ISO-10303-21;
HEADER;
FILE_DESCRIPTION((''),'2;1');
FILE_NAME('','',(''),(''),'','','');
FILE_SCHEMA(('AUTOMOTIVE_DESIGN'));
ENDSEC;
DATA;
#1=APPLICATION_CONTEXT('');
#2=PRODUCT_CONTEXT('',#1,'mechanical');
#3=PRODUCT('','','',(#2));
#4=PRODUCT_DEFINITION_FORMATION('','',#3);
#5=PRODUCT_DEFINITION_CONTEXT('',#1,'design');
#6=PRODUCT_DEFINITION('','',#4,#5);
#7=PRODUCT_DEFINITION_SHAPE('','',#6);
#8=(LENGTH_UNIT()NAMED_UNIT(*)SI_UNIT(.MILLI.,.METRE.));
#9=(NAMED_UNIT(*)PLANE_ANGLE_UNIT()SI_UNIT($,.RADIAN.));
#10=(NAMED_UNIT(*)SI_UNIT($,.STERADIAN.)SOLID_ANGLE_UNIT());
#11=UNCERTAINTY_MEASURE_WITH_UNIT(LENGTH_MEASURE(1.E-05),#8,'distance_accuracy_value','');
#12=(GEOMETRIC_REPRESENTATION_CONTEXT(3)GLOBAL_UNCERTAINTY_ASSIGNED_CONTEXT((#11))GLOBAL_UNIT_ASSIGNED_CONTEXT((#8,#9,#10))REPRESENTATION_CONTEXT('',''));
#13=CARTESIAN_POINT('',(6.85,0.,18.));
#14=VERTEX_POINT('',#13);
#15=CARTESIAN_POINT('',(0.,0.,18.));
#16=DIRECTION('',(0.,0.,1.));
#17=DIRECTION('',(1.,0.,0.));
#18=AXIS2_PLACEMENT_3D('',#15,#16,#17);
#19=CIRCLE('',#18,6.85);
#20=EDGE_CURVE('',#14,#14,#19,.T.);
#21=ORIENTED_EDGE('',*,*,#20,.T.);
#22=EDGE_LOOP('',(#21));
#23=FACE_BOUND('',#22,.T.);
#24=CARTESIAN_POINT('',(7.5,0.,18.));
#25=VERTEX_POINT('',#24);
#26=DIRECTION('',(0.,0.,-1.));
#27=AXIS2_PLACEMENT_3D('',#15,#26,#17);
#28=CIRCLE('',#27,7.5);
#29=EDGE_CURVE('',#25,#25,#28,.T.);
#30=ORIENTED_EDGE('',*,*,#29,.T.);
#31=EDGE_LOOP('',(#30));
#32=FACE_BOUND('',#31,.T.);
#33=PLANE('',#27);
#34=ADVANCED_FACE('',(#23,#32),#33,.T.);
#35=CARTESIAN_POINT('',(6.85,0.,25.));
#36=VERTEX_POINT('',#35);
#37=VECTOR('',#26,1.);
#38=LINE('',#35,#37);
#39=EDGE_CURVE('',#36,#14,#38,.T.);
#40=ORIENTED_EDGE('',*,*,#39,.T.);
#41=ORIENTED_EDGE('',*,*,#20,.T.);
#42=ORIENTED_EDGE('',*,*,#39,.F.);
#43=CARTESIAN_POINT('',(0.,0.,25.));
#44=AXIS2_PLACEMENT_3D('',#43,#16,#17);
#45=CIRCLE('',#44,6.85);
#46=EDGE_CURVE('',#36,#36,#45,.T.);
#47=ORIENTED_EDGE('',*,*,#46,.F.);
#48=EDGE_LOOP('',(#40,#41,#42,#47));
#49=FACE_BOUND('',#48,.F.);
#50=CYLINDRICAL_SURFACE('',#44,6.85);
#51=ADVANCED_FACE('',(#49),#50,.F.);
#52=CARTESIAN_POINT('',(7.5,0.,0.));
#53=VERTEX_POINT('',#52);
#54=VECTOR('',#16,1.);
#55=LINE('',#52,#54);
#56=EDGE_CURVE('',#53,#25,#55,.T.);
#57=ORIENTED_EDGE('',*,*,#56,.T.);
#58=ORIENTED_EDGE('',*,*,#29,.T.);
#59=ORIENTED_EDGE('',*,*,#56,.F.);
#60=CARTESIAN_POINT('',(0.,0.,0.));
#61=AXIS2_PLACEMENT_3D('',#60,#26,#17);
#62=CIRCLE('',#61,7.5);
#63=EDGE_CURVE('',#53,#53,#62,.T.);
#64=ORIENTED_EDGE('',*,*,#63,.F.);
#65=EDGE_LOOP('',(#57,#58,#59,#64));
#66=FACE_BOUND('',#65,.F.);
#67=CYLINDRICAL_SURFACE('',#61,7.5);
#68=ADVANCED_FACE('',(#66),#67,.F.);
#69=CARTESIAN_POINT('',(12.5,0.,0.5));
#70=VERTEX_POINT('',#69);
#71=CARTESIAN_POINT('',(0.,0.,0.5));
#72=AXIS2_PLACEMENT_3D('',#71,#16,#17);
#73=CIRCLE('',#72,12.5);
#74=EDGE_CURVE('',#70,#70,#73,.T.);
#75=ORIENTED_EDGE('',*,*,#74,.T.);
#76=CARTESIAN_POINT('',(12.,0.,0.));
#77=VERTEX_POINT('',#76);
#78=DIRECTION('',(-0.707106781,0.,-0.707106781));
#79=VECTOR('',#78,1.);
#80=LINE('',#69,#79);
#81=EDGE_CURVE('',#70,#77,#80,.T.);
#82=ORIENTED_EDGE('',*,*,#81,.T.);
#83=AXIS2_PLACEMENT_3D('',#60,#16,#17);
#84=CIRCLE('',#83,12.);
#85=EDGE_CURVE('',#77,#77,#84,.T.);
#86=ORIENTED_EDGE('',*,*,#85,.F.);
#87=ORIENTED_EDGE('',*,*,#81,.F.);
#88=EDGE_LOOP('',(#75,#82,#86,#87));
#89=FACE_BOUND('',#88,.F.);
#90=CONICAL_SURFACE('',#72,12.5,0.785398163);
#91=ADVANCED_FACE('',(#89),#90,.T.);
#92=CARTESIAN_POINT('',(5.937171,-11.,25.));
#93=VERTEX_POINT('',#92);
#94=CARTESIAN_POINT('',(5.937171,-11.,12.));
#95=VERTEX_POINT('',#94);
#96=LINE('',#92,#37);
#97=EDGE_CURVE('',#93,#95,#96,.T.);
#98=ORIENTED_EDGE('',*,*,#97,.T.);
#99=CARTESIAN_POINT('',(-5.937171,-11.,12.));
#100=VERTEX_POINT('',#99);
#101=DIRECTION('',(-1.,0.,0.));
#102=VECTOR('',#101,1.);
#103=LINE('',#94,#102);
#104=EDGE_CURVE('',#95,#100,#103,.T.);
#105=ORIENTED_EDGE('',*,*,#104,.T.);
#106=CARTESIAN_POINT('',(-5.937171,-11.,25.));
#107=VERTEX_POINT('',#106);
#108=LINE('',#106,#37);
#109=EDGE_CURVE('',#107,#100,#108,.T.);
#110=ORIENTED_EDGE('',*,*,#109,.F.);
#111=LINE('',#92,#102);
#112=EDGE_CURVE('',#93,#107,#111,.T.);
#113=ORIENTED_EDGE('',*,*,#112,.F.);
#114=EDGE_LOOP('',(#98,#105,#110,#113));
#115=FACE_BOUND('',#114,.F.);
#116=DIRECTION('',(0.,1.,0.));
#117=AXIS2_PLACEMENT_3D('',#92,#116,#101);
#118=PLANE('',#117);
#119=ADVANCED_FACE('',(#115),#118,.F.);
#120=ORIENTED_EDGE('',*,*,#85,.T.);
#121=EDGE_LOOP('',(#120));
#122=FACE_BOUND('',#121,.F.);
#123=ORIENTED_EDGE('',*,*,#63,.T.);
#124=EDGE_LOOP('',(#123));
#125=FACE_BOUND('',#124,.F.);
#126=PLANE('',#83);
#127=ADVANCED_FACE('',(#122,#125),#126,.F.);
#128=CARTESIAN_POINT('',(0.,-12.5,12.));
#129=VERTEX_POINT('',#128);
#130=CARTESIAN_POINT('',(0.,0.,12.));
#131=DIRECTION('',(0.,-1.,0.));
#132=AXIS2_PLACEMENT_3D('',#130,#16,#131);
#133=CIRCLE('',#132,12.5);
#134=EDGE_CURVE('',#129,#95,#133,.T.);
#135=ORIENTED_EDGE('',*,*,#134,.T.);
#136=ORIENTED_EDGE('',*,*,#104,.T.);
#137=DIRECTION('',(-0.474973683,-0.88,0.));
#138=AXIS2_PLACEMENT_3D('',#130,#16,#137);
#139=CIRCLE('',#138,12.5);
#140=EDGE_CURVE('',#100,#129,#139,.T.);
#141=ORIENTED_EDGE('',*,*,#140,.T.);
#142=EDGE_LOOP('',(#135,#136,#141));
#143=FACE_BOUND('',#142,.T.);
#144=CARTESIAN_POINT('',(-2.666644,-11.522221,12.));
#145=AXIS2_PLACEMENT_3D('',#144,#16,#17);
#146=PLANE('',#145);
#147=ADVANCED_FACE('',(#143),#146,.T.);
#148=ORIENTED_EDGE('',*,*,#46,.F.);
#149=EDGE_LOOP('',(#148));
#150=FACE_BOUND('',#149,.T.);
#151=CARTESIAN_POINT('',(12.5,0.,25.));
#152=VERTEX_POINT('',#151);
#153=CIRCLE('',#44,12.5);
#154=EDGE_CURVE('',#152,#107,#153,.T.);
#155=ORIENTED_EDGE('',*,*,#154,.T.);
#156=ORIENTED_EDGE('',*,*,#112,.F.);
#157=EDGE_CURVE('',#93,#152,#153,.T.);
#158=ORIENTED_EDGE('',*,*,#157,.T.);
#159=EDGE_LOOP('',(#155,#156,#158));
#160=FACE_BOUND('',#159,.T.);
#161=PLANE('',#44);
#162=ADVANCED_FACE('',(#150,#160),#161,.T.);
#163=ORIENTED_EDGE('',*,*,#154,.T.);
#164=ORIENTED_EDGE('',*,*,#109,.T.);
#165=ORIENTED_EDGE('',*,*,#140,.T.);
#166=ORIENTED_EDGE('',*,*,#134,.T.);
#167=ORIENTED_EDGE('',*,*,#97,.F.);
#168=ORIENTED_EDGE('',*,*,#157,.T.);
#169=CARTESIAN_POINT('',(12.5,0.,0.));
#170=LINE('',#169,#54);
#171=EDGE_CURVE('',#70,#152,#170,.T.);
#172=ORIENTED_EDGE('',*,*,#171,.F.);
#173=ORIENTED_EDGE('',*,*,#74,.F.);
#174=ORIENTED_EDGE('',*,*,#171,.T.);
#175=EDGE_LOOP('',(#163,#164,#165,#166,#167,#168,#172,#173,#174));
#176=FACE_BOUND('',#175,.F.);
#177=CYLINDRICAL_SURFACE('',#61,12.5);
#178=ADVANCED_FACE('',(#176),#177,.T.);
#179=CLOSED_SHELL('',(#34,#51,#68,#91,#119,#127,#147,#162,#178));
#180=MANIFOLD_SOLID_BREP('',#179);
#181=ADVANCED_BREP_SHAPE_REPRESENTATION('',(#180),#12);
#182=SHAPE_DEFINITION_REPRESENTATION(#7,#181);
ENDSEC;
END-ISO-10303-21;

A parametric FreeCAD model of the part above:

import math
import FreeCAD as App
import Part
import Sketcher

V = App.Vector


def edges_at(feature, points):
    """Names of the edges that pass closest to the given points."""
    edges = feature.Shape.Edges
    near = lambda p: min(range(len(edges)), key=lambda i: edges[i].distToShape(Part.Vertex(*p))[0])
    return sorted({f"Edge{near(p) + 1}" for p in points})

doc = App.newDocument("Part")
body = doc.addObject("PartDesign::Body", "Body")

sketch1 = doc.addObject("Sketcher::SketchObject", "Sketch")
body.addObject(sketch1)
sketch1.AttachmentSupport = (doc.XY_Plane, [""])
sketch1.MapMode = "FlatFace"
sketch1.addGeometry(Part.Circle(V(0, 0, 0), V(0, 0, 1), 12.5), False)
sketch1.addConstraint([
    Sketcher.Constraint("Coincident", 0, 3, -1, 1),
    Sketcher.Constraint("Diameter", 0, 25.0),
])
pad1 = doc.addObject("PartDesign::Pad", "Pad")
body.addObject(pad1)
pad1.Profile = sketch1
pad1.Length = 25

sketch2 = doc.addObject("Sketcher::SketchObject", "Sketch001")
body.addObject(sketch2)
sketch2.AttachmentSupport = (doc.XY_Plane, [""])
sketch2.MapMode = "FlatFace"
sketch2.addGeometry(Part.Circle(V(0, 0, 0), V(0, 0, 1), 7.5), False)
sketch2.addConstraint([
    Sketcher.Constraint("Coincident", 0, 3, -1, 1),
    Sketcher.Constraint("Diameter", 0, 15.0),
])
pocket1 = doc.addObject("PartDesign::Pocket", "Pocket")
body.addObject(pocket1)
pocket1.Profile = sketch2
pocket1.Length = 18
pocket1.Reversed = True

sketch3 = doc.addObject("Sketcher::SketchObject", "Sketch002")
body.addObject(sketch3)
sketch3.AttachmentSupport = (doc.XY_Plane, [""])
sketch3.MapMode = "FlatFace"
sketch3.AttachmentOffset = App.Placement(V(0, 0, 25), App.Rotation())
sketch3.addGeometry(Part.Circle(V(0, 0, 0), V(0, 0, 1), 6.85), False)
sketch3.addConstraint([
    Sketcher.Constraint("Coincident", 0, 3, -1, 1),
    Sketcher.Constraint("Diameter", 0, 13.7),
])
pocket2 = doc.addObject("PartDesign::Pocket", "Pocket001")
body.addObject(pocket2)
pocket2.Profile = sketch3
pocket2.Length = 7

sketch4 = doc.addObject("Sketcher::SketchObject", "Sketch003")
body.addObject(sketch4)
sketch4.AttachmentSupport = (doc.XY_Plane, [""])
sketch4.MapMode = "FlatFace"
sketch4.AttachmentOffset = App.Placement(V(0, 0, 25), App.Rotation())
sketch4.addGeometry([
    Part.ArcOfCircle(Part.Circle(V(0, 0, 0), V(0, 0, 1), 12.5), math.radians(-118.357637), math.radians(-90)),
    Part.ArcOfCircle(Part.Circle(V(0, 0, 0), V(0, 0, 1), 12.5), math.radians(-90), math.radians(-61.642363)),
    Part.LineSegment(V(5.937171, -11, 0), V(-5.937171, -11, 0)),
], False)
sketch4.addConstraint([
    Sketcher.Constraint("Tangent", 0, 2, 1, 1),
    Sketcher.Constraint("Coincident", 1, 2, 2, 1),
    Sketcher.Constraint("Coincident", 2, 2, 0, 1),
    Sketcher.Constraint("Horizontal", 2),
    Sketcher.Constraint("Coincident", 0, 3, -1, 1),
    Sketcher.Constraint("Equal", 0, 1),
    Sketcher.Constraint("PointOnObject", 0, 2, -2),
    Sketcher.Constraint("Radius", 0, 12.5),
    Sketcher.Constraint("DistanceY", 1, 2, -1, 1, 11.0),
])
pocket3 = doc.addObject("PartDesign::Pocket", "Pocket002")
body.addObject(pocket3)
pocket3.Profile = sketch4
pocket3.Length = 13
doc.recompute()

chamfer = doc.addObject("PartDesign::Chamfer", "Chamfer")
body.addObject(chamfer)
chamfer.Base = (pocket3, edges_at(pocket3, [(-12.5, 0, 0)]))
chamfer.Size = 0.5

doc.recompute()
